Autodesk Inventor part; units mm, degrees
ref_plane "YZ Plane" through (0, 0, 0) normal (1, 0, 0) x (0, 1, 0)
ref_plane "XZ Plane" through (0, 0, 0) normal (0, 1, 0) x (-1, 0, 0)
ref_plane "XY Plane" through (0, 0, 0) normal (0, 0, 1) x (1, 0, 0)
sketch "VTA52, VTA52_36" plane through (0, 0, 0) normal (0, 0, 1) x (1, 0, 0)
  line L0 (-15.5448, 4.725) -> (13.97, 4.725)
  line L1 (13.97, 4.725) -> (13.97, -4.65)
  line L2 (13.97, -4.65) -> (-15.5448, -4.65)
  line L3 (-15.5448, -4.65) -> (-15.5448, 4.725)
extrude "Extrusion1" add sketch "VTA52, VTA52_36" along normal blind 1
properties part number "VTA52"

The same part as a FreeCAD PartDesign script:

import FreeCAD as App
import Part
import Sketcher


def add_polygon(sketch, points):
    """Adds a closed chain of lines whose ends are joined by coincident constraints."""
    first, n = sketch.GeometryCount, len(points)
    for a, b in zip(points, points[1:] + points[:1]):
        sketch.addGeometry(Part.LineSegment(App.Vector(*a, 0), App.Vector(*b, 0)), False)
    for i in range(n):
        sketch.addConstraint(Sketcher.Constraint("Coincident", first + i, 2, first + (i + 1) % n, 1))

doc = App.newDocument("Part")
body = doc.addObject("PartDesign::Body", "Body")

sketch1 = body.newObject("Sketcher::SketchObject", "Sketch")
sketch1.AttachmentSupport = (doc.getObject("XY_Plane"), [""])
sketch1.MapMode = "FlatFace"
add_polygon(sketch1, [(14, 5), (-16, 5), (-16, -5), (14, -5)])
sketch1.addConstraint(Sketcher.Constraint("Horizontal", 0))
sketch1.addConstraint(Sketcher.Constraint("Vertical", 1))
sketch1.addConstraint(Sketcher.Constraint("Horizontal", 2))
sketch1.addConstraint(Sketcher.Constraint("Vertical", 3))
sketch1.addConstraint(Sketcher.Constraint("DistanceY", 1, 2, 1, 1, 9.375))
sketch1.addConstraint(Sketcher.Constraint("DistanceY", 1, 2, -1, 1, 4.65))
sketch1.addConstraint(Sketcher.Constraint("DistanceX", -1, 1, 2, 2, 13.97))
sketch1.addConstraint(Sketcher.Constraint("DistanceX", 0, 2, 0, 1, 29.5148))
pad1 = body.newObject("PartDesign::Pad", "Pad")
pad1.Profile = sketch1
pad1.Length = 1

doc.recompute()
